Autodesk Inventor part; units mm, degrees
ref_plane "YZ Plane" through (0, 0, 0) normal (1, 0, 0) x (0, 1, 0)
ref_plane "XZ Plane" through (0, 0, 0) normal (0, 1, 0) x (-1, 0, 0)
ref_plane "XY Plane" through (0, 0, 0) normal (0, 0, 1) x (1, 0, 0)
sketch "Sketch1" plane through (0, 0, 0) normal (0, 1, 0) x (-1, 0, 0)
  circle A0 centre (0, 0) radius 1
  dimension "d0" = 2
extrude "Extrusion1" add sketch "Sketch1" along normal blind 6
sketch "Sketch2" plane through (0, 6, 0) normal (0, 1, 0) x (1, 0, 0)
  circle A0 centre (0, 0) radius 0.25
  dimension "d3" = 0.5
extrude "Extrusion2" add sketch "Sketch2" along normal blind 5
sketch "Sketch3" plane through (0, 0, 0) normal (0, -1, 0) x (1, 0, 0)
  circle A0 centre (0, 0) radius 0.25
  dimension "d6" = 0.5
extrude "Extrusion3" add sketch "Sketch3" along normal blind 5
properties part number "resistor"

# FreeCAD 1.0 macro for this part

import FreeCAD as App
import Part
import Sketcher
from FreeCAD import Vector
Q = App.Units.Quantity

doc = App.newDocument("Part")
body = doc.addObject("PartDesign::Body", "Body")

sketch1 = body.newObject("Sketcher::SketchObject", "Sketch")
sketch1.AttachmentSupport = (doc.getObject("XZ_Plane"), [""])
sketch1.MapMode = "FlatFace"
sketch1.addGeometry(Part.Circle(Vector(0, 0, 0), Vector(0, 0, 1), 1), False)
sketch1.addConstraint([
    Sketcher.Constraint("Coincident", 0, 3, -1, 1),
    Sketcher.Constraint("Diameter", 0, Q("2 mm")),
])
pad1 = body.newObject("PartDesign::Pad", "Pad")
pad1.Profile = sketch1
pad1.Length = 6
pad1.Reversed = True

sketch2 = body.newObject("Sketcher::SketchObject", "Sketch001")
sketch2.AttachmentSupport = (doc.getObject("XZ_Plane"), [""])
sketch2.MapMode = "FlatFace"
sketch2.AttachmentOffset = App.Placement(Vector(0, 0, -6), App.Rotation())
sketch2.addGeometry(Part.Circle(Vector(0, 0, 0), Vector(0, 0, 1), 0.25), False)
sketch2.addConstraint([
    Sketcher.Constraint("Coincident", 0, 3, -1, 1),
    Sketcher.Constraint("Diameter", 0, Q("0.5 mm")),
])
pad2 = body.newObject("PartDesign::Pad", "Pad001")
pad2.Profile = sketch2
pad2.Length = 5
pad2.Reversed = True

sketch3 = body.newObject("Sketcher::SketchObject", "Sketch002")
sketch3.AttachmentSupport = (doc.getObject("XZ_Plane"), [""])
sketch3.MapMode = "FlatFace"
sketch3.addGeometry(Part.Circle(Vector(0, 0, 0), Vector(0, 0, 1), 0.25), False)
sketch3.addConstraint([
    Sketcher.Constraint("Coincident", 0, 3, -1, 1),
    Sketcher.Constraint("Diameter", 0, Q("0.5 mm")),
])
pad3 = body.newObject("PartDesign::Pad", "Pad002")
pad3.Profile = sketch3
pad3.Length = 5

doc.recompute()
